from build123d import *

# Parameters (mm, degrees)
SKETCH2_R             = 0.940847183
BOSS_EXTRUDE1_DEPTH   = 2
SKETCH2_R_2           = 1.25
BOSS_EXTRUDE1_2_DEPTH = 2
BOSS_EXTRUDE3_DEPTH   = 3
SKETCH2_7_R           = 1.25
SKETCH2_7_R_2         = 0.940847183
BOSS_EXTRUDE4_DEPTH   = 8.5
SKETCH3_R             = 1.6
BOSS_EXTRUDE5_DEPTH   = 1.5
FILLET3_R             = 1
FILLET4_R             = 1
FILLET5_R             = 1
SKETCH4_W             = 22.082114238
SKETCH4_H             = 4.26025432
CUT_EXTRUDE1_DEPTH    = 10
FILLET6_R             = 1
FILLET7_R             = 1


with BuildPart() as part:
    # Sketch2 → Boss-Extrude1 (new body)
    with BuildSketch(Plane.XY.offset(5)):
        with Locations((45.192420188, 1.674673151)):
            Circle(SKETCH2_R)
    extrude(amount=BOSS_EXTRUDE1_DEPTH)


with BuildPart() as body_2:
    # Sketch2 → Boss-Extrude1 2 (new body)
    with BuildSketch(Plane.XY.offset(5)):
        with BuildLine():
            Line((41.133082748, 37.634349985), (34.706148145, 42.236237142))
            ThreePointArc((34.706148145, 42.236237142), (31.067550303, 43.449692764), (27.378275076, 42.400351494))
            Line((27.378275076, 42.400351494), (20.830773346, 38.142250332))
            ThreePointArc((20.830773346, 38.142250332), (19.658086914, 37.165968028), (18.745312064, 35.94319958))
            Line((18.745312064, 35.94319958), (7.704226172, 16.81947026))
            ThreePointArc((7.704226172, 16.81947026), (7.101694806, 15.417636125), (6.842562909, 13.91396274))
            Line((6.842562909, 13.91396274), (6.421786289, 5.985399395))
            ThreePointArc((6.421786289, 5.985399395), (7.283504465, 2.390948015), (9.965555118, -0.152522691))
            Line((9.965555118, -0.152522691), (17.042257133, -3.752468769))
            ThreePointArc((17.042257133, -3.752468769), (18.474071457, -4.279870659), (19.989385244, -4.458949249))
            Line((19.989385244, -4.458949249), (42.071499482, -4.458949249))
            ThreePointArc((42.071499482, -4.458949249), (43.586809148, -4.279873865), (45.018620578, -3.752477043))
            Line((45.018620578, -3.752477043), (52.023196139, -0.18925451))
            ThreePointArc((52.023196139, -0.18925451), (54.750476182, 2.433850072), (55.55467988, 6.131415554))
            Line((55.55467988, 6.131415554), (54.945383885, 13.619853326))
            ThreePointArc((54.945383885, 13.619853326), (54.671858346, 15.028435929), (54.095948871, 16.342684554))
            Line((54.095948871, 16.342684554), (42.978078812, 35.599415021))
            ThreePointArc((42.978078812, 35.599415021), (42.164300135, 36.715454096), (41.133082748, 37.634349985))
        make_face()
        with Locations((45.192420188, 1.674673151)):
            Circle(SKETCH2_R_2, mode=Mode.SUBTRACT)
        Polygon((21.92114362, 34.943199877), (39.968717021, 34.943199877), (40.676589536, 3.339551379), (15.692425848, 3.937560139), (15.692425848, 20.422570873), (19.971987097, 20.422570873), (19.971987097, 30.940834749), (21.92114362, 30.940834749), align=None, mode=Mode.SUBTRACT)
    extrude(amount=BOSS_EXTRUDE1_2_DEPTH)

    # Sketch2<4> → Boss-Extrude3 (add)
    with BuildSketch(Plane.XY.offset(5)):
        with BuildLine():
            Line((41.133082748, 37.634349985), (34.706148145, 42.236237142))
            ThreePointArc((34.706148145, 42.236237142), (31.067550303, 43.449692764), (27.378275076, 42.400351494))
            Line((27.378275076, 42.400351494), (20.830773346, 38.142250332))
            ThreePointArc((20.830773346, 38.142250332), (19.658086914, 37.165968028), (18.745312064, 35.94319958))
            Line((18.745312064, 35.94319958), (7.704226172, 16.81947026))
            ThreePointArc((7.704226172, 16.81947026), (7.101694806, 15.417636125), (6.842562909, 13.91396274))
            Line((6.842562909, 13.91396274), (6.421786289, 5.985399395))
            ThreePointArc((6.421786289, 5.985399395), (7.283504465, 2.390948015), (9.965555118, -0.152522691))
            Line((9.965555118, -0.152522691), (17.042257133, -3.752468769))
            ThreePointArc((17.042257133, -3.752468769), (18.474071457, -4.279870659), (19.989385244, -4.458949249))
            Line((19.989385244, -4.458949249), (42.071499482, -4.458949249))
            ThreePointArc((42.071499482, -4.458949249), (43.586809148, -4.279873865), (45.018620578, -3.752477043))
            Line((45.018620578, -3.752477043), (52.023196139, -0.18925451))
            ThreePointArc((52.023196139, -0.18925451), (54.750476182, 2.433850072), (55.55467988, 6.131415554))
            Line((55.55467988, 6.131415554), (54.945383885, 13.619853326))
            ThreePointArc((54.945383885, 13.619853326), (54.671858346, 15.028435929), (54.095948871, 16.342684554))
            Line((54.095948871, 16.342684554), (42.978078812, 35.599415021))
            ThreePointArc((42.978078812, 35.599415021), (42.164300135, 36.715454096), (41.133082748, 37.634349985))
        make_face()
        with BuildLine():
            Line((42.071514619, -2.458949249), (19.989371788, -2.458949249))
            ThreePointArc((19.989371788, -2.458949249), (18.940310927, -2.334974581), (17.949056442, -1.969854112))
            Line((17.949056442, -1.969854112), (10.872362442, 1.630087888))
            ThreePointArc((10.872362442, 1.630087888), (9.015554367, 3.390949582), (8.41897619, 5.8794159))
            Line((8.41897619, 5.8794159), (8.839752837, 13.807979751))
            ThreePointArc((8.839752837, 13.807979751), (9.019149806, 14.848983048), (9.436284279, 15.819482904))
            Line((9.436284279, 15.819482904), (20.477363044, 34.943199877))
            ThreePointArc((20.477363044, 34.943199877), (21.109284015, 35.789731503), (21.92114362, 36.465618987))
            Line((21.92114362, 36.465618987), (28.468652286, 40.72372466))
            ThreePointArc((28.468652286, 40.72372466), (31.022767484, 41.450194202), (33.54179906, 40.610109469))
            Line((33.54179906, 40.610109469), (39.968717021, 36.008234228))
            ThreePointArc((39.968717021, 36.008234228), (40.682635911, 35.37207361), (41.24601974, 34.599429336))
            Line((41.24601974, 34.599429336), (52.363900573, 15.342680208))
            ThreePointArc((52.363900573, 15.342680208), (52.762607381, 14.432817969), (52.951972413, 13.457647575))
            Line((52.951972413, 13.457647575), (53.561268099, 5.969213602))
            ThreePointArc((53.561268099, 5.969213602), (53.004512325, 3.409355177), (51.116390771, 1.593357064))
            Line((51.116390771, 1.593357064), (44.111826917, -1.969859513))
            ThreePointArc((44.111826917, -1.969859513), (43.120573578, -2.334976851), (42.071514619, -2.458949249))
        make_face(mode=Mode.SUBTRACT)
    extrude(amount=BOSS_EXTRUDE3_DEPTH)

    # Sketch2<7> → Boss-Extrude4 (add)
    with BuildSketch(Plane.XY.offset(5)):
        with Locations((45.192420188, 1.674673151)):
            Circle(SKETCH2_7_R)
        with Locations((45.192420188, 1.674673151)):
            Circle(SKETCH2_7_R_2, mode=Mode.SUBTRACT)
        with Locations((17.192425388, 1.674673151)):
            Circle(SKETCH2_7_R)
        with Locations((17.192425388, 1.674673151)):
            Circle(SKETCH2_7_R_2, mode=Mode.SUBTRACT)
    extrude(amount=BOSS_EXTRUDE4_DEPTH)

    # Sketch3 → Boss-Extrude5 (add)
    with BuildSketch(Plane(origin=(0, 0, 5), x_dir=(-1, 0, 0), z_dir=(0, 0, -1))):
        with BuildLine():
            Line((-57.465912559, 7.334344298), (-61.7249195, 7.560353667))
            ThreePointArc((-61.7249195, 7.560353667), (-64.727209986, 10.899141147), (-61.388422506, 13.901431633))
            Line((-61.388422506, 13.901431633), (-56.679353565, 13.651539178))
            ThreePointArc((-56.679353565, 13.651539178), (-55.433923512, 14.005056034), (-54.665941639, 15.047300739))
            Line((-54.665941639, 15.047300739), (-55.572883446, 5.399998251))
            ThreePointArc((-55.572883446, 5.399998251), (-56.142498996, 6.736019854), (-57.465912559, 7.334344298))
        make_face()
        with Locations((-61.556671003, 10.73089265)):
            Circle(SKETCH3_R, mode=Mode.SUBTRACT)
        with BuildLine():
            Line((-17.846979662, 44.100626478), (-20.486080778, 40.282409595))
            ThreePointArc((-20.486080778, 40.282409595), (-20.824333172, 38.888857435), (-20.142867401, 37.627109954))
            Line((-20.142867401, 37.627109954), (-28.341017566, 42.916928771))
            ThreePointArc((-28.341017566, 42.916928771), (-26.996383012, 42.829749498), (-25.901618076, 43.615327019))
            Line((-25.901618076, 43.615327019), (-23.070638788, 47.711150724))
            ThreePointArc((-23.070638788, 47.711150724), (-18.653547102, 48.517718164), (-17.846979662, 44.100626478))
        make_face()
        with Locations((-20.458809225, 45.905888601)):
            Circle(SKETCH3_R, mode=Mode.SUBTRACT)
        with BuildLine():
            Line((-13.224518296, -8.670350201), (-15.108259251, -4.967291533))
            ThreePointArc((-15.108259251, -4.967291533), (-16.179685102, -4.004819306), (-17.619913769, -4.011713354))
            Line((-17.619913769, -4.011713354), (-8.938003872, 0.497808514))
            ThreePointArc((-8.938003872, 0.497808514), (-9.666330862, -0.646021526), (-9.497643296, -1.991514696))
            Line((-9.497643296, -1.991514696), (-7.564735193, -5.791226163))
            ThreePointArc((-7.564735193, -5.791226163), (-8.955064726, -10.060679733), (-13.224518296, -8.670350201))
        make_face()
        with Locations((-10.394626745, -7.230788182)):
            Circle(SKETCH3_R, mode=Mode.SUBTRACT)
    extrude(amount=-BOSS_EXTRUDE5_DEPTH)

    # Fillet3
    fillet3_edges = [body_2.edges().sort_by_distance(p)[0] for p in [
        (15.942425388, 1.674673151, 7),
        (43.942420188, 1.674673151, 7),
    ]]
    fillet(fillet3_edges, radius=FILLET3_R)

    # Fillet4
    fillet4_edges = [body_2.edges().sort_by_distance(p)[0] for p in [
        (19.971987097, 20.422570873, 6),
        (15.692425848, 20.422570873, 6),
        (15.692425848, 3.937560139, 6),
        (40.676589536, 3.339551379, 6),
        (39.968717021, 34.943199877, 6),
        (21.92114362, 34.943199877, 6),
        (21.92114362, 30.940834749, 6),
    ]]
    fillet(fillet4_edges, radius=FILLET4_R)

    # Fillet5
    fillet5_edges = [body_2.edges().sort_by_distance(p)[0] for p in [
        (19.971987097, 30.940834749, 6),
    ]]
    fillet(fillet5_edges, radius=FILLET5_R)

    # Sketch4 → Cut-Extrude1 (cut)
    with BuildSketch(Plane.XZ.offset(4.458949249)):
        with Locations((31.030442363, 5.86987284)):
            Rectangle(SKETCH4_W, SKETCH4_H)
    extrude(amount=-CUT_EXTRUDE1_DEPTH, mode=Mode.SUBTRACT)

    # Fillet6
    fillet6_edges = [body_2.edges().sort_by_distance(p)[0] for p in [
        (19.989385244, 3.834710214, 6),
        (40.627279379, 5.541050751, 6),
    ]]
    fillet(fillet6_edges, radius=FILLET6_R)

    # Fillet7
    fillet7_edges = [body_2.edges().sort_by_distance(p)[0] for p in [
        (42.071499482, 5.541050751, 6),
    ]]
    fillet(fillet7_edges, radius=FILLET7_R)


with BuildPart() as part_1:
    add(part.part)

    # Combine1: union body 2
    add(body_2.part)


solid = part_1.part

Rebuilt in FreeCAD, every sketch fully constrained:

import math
import FreeCAD as App
import Part
import Sketcher
Q = App.Units.Quantity


def edges_at(feature, points):
    """Names of the edges that pass closest to the given points."""
    edges = feature.Shape.Edges
    near = lambda p: min(range(len(edges)), key=lambda i: edges[i].distToShape(Part.Vertex(*p))[0])
    return sorted({f"Edge{near(p) + 1}" for p in points})

doc = App.newDocument("Part")
body = doc.addObject("PartDesign::Body", "Body")

# Sketch on XY plane
sketch1 = doc.addObject("Sketcher::SketchObject", "Sketch")
body.addObject(sketch1)
sketch1.AttachmentSupport = (doc.XY_Plane, [""])
sketch1.MapMode = "FlatFace"
sketch1.AttachmentOffset = App.Placement(App.Vector(0, 0, 5), App.Rotation())
sketch1.addGeometry(Part.Circle(App.Vector(45.2, 1.7, 0), App.Vector(0, 0, 1), 0.9), False)
sketch1.addConstraint([
    Sketcher.Constraint("Diameter", 0, 1.881694),
    Sketcher.Constraint("DistanceX", -1, 1, 0, 3, 45.19242),
    Sketcher.Constraint("DistanceY", -1, 1, 0, 3, 1.674673),
])
pad1 = doc.addObject("PartDesign::Pad", "Pad")
body.addObject(pad1)
pad1.Profile = sketch1
pad1.Length = 2
body2 = doc.addObject("PartDesign::Body", "Body001")

# Sketch on XY plane
sketch2 = doc.addObject("Sketcher::SketchObject", "Sketch001")
body2.addObject(sketch2)
sketch2.AttachmentSupport = (doc.getObject("XY_Plane001"), [""])
sketch2.MapMode = "FlatFace"
sketch2.AttachmentOffset = App.Placement(App.Vector(0, 0, 5), App.Rotation())
sketch2.addGeometry([
    Part.LineSegment(App.Vector(41.133083, 37.63435, 0), App.Vector(34.706148, 42.236237, 0)),  # 0
    Part.ArcOfCircle(Part.Circle(App.Vector(30.922013, 36.951322, 0), App.Vector(0, 0, 1), 6.5), math.radians(54.396366), math.radians(123.037681)),  # 1
    Part.LineSegment(App.Vector(27.378275, 42.400351, 0), App.Vector(20.830773, 38.14225, 0)),  # 2
    Part.ArcOfCircle(Part.Circle(App.Vector(24.374478, 32.693197, 0), App.Vector(0, 0, 1), 6.500002), math.radians(123.037316), math.radians(149.999983)),  # 3
    Part.LineSegment(App.Vector(18.745312, 35.9432, 0), App.Vector(7.704226, 16.81947, 0)),  # 4
    Part.ArcOfCircle(Part.Circle(App.Vector(13.333429, 13.56954, 0), App.Vector(0, 0, 1), 6.499998), math.radians(150.000701), math.radians(176.962583)),  # 5
    Part.LineSegment(App.Vector(6.842563, 13.913963, 0), App.Vector(6.421786, 5.985399, 0)),  # 6
    Part.ArcOfCircle(Part.Circle(App.Vector(12.912654, 5.640974, 0), App.Vector(0, 0, 1), 6.5), math.radians(176.962558), math.radians(243.037972)),  # 7
    Part.LineSegment(App.Vector(9.965555, -0.152523, 0), App.Vector(17.042257, -3.752469, 0)),  # 8
    Part.ArcOfCircle(Part.Circle(App.Vector(19.989311, 2.041048, 0), App.Vector(0, 0, 1), 6.499997), math.radians(-116.961592), math.radians(-89.999348)),  # 9
    Part.LineSegment(App.Vector(19.989385, -4.458949, 0), App.Vector(42.071499, -4.458949, 0)),  # 10
    Part.ArcOfCircle(Part.Circle(App.Vector(42.071583, 2.041048, 0), App.Vector(0, 0, 1), 6.499997), math.radians(-90.000734), math.radians(-63.038568)),  # 11
    Part.LineSegment(App.Vector(45.018621, -3.752477, 0), App.Vector(52.023196, -0.189255, 0)),  # 12
    Part.ArcOfCircle(Part.Circle(App.Vector(49.076092, 5.604241, 0), App.Vector(0, 0, 1), 6.500001), math.radians(-63.037932), math.radians(4.652015)),  # 13
    Part.LineSegment(App.Vector(55.55468, 6.131416, 0), App.Vector(54.945384, 13.619853, 0)),  # 14
    Part.ArcOfCircle(Part.Circle(App.Vector(48.466795, 13.092657, 0), App.Vector(0, 0, 1), 6.500004), math.radians(4.6522), math.radians(30.000256)),  # 15
    Part.LineSegment(App.Vector(54.095949, 16.342685, 0), App.Vector(42.978079, 35.599415, 0)),  # 16
    Part.ArcOfCircle(Part.Circle(App.Vector(37.348874, 32.349496, 0), App.Vector(0, 0, 1), 6.499994), math.radians(29.999212), math.radians(54.395526)),  # 17
    Part.Circle(App.Vector(45.19242, 1.674673, 0), App.Vector(0, 0, 1), 1.25),  # 18
    Part.LineSegment(App.Vector(21.921144, 30.940835, 0), App.Vector(21.921144, 34.9432, 0)),  # 19
    Part.LineSegment(App.Vector(21.921144, 34.9432, 0), App.Vector(39.968717, 34.9432, 0)),  # 20
    Part.LineSegment(App.Vector(39.968717, 34.9432, 0), App.Vector(40.67659, 3.339551, 0)),  # 21
    Part.LineSegment(App.Vector(40.67659, 3.339551, 0), App.Vector(15.692426, 3.93756, 0)),  # 22
    Part.LineSegment(App.Vector(15.692426, 3.93756, 0), App.Vector(15.692426, 20.422571, 0)),  # 23
    Part.LineSegment(App.Vector(15.692426, 20.422571, 0), App.Vector(19.971987, 20.422571, 0)),  # 24
    Part.LineSegment(App.Vector(19.971987, 20.422571, 0), App.Vector(19.971987, 30.940835, 0)),  # 25
    Part.LineSegment(App.Vector(19.971987, 30.940835, 0), App.Vector(21.921144, 30.940835, 0)),  # 26
], False)
sketch2.addConstraint([
    Sketcher.Constraint("Coincident", 0, 2, 1, 1),
    Sketcher.Constraint("Coincident", 1, 2, 2, 1),
    Sketcher.Constraint("Coincident", 2, 2, 3, 1),
    Sketcher.Constraint("Coincident", 3, 2, 4, 1),
    Sketcher.Constraint("Coincident", 4, 2, 5, 1),
    Sketcher.Constraint("Coincident", 5, 2, 6, 1),
    Sketcher.Constraint("Coincident", 6, 2, 7, 1),
    Sketcher.Constraint("Coincident", 7, 2, 8, 1),
    Sketcher.Constraint("Coincident", 8, 2, 9, 1),
    Sketcher.Constraint("Coincident", 9, 2, 10, 1),
    Sketcher.Constraint("Coincident", 10, 2, 11, 1),
    Sketcher.Constraint("Coincident", 11, 2, 12, 1),
    Sketcher.Constraint("Coincident", 12, 2, 13, 1),
    Sketcher.Constraint("Coincident", 13, 2, 14, 1),
    Sketcher.Constraint("Coincident", 14, 2, 15, 1),
    Sketcher.Constraint("Coincident", 15, 2, 16, 1),
    Sketcher.Constraint("Coincident", 16, 2, 17, 1),
    Sketcher.Constraint("Coincident", 17, 2, 0, 1),
    Sketcher.Constraint("Coincident", 19, 2, 20, 1),
    Sketcher.Constraint("Coincident", 20, 2, 21, 1),
    Sketcher.Constraint("Coincident", 21, 2, 22, 1),
    Sketcher.Constraint("Coincident", 22, 2, 23, 1),
    Sketcher.Constraint("Coincident", 23, 2, 24, 1),
    Sketcher.Constraint("Coincident", 24, 2, 25, 1),
    Sketcher.Constraint("Coincident", 25, 2, 26, 1),
    Sketcher.Constraint("Coincident", 26, 2, 19, 1),
    Sketcher.Constraint("Horizontal", 10),
    Sketcher.Constraint("Vertical", 19),
    Sketcher.Constraint("Horizontal", 20),
    Sketcher.Constraint("Vertical", 23),
    Sketcher.Constraint("Horizontal", 24),
    Sketcher.Constraint("Vertical", 25),
    Sketcher.Constraint("Horizontal", 26),
    Sketcher.Constraint("Diameter", 18, 2.5),
    Sketcher.Constraint("Radius", 1, 6.5),
    Sketcher.Constraint("Radius", 3, 6.500002),
    Sketcher.Constraint("Radius", 7, 6.5),
    Sketcher.Constraint("Radius", 13, 6.500001),
    Sketcher.Constraint("DistanceY", 19, 2, 3, 2, 1.0),
    Sketcher.Constraint("Radius", 5, 6.499998),
    Sketcher.Constraint("Radius", 9, 6.499997),
    Sketcher.Constraint("Radius", 11, 6.499997),
    Sketcher.Constraint("Radius", 15, 6.500004),
    Sketcher.Constraint("Radius", 17, 6.499994),
    Sketcher.Constraint("DistanceY", 17, 2, 1, 2, 4.766002),
    Sketcher.Constraint("DistanceX", 24, 1, 24, 2, 4.279561),
    Sketcher.Constraint("DistanceY", 23, 1, 23, 2, 16.485011),
    Sketcher.Constraint("DistanceY", -1, 1, 3, 2, 35.9432),
    Sketcher.Constraint("DistanceY", -1, 1, 6, 2, 5.985399),
    Sketcher.Constraint("DistanceX", -1, 1, 10, 2, 42.071499),
    Sketcher.Constraint("DistanceY", 13, 3, 5, 3, 7.965299),
    Sketcher.Constraint("DistanceY", 17, 3, 3, 3, 0.343702),
    Sketcher.Constraint("DistanceX", 1, 2, 17, 3, 9.970599),
    Sketcher.Constraint("DistanceX", 2, 2, 1, 2, 6.547502),
    Sketcher.Constraint("DistanceY", 2, 2, 1, 2, 4.258101),
    Sketcher.Constraint("DistanceX", 3, 2, 1, 3, 12.176701),
    Sketcher.Constraint("DistanceX", 7, 2, 7, 3, 2.947099),
    Sketcher.Constraint("DistanceX", 6, 2, 9, 2, 13.567599),
    Sketcher.Constraint("DistanceX", 11, 2, 18, 3, 0.1738),
    Sketcher.Constraint("DistanceX", 3, 3, 16, 2, 18.603601),
    Sketcher.Constraint("DistanceY", 10, 2, 21, 2, 7.798501),
    Sketcher.Constraint("DistanceX", 4, 2, 23, 2, 7.9882),
    Sketcher.Constraint("DistanceY", 4, 2, 23, 2, 3.603101),
    Sketcher.Constraint("Distance", 0, 7.90461),
    Sketcher.Constraint("Distance", 4, 22.082178),
    Sketcher.Constraint("Distance", 6, 7.939721),
    Sketcher.Constraint("Distance", 8, 7.939731),
    Sketcher.Constraint("Distance", 22, 24.991319),
    Sketcher.Constraint("DistanceX", 10, 1, 10, 2, 22.082114),
    Sketcher.Constraint("DistanceX", 20, 1, 20, 2, 18.047573),
    Sketcher.Constraint("DistanceX", 26, 1, 26, 2, 1.949157),
    Sketcher.Constraint("DistanceY", 19, 1, 19, 2, 4.002365),
    Sketcher.Constraint("DistanceY", 25, 1, 25, 2, 10.518264),
    Sketcher.Constraint("DistanceY", -1, 1, 1, 3, 36.951322),
    Sketcher.Constraint("DistanceX", -1, 1, 5, 3, 13.333429),
    Sketcher.Constraint("DistanceY", -1, 1, 5, 3, 13.56954),
    Sketcher.Constraint("DistanceX", -1, 1, 9, 3, 19.989311),
    Sketcher.Constraint("DistanceY", -1, 1, 9, 3, 2.041048),
    Sketcher.Constraint("DistanceX", -1, 1, 18, 3, 45.19242),
    Sketcher.Constraint("DistanceX", -1, 1, 0, 2, 34.706148),
    Sketcher.Constraint("DistanceY", 8, 2, -1, 1, 3.752469),
    Sketcher.Constraint("DistanceX", -1, 1, 13, 2, 55.55468),
    Sketcher.Constraint("DistanceX", -1, 1, 15, 2, 54.095949),
    Sketcher.Constraint("DistanceX", 9, 3, 11, 3, 22.082271),
    Sketcher.Constraint("DistanceX", 11, 3, 13, 3, 7.00451),
    Sketcher.Constraint("DistanceY", 11, 3, 15, 3, 11.051609),
    Sketcher.Constraint("DistanceX", 1, 3, 15, 3, 17.544782),
    Sketcher.Constraint("DistanceY", 11, 2, 18, 3, 5.42715),
    Sketcher.Constraint("DistanceY", 12, 2, 13, 2, 6.32067),
    Sketcher.Constraint("DistanceX", 15, 3, 14, 2, 6.478589),
])
pad2 = doc.addObject("PartDesign::Pad", "Pad001")
body2.addObject(pad2)
pad2.Profile = sketch2
pad2.Length = 2

# Sketch on XY plane
sketch3 = doc.addObject("Sketcher::SketchObject", "Sketch002")
body2.addObject(sketch3)
sketch3.AttachmentSupport = (doc.getObject("XY_Plane001"), [""])
sketch3.MapMode = "FlatFace"
sketch3.AttachmentOffset = App.Placement(App.Vector(0, 0, 5), App.Rotation())
sketch3.addGeometry([
    Part.LineSegment(App.Vector(41.1, 37.6, 0), App.Vector(34.7, 42.2, 0)),  # 0
    Part.ArcOfCircle(Part.Circle(App.Vector(30.9, 37, 0), App.Vector(0, 0, 1), 6.5), math.radians(54), math.radians(123)),  # 1
    Part.LineSegment(App.Vector(27.4, 42.4, 0), App.Vector(20.8, 38.1, 0)),  # 2
    Part.ArcOfCircle(Part.Circle(App.Vector(24.4, 32.7, 0), App.Vector(0, 0, 1), 6.5), math.radians(123), math.radians(150)),  # 3
    Part.LineSegment(App.Vector(18.7, 35.9, 0), App.Vector(7.7, 16.8, 0)),  # 4
    Part.ArcOfCircle(Part.Circle(App.Vector(13.3, 13.6, 0), App.Vector(0, 0, 1), 6.5), math.radians(150), math.radians(177)),  # 5
    Part.LineSegment(App.Vector(6.8, 13.9, 0), App.Vector(6.4, 6, 0)),  # 6
    Part.ArcOfCircle(Part.Circle(App.Vector(12.9, 5.6, 0), App.Vector(0, 0, 1), 6.5), math.radians(177), math.radians(243)),  # 7
    Part.LineSegment(App.Vector(10, -0.2, 0), App.Vector(17, -3.8, 0)),  # 8
    Part.ArcOfCircle(Part.Circle(App.Vector(20, 2, 0), App.Vector(0, 0, 1), 6.5), math.radians(-117), math.radians(-90)),  # 9
    Part.LineSegment(App.Vector(20, -4.5, 0), App.Vector(42.1, -4.5, 0)),  # 10
    Part.ArcOfCircle(Part.Circle(App.Vector(42.1, 2, 0), App.Vector(0, 0, 1), 6.5), math.radians(-90), math.radians(-63)),  # 11
    Part.LineSegment(App.Vector(45, -3.8, 0), App.Vector(52, -0.2, 0)),  # 12
    Part.ArcOfCircle(Part.Circle(App.Vector(49.1, 5.6, 0), App.Vector(0, 0, 1), 6.5), math.radians(-63), math.radians(5)),  # 13
    Part.LineSegment(App.Vector(55.6, 6.1, 0), App.Vector(54.9, 13.6, 0)),  # 14
    Part.ArcOfCircle(Part.Circle(App.Vector(48.5, 13.1, 0), App.Vector(0, 0, 1), 6.5), math.radians(5), math.radians(30)),  # 15
    Part.LineSegment(App.Vector(54.1, 16.3, 0), App.Vector(43, 35.6, 0)),  # 16
    Part.ArcOfCircle(Part.Circle(App.Vector(37.3, 32.3, 0), App.Vector(0, 0, 1), 6.5), math.radians(30), math.radians(54)),  # 17
    Part.ArcOfCircle(Part.Circle(App.Vector(42.1, 2, 0), App.Vector(0, 0, 1), 4.5), math.radians(-90), math.radians(-63)),  # 18
    Part.LineSegment(App.Vector(42.1, -2.5, 0), App.Vector(20, -2.5, 0)),  # 19
    Part.ArcOfCircle(Part.Circle(App.Vector(20, 2, 0), App.Vector(0, 0, 1), 4.5), math.radians(-117), math.radians(-90)),  # 20
    Part.LineSegment(App.Vector(17.9, -2, 0), App.Vector(10.9, 1.6, 0)),  # 21
    Part.ArcOfCircle(Part.Circle(App.Vector(12.9, 5.6, 0), App.Vector(0, 0, 1), 4.5), math.radians(177), math.radians(243)),  # 22
    Part.LineSegment(App.Vector(8.4, 5.9, 0), App.Vector(8.8, 13.8, 0)),  # 23
    Part.ArcOfCircle(Part.Circle(App.Vector(13.3, 13.6, 0), App.Vector(0, 0, 1), 4.5), math.radians(150), math.radians(177)),  # 24
    Part.LineSegment(App.Vector(9.4, 15.8, 0), App.Vector(20.5, 34.9, 0)),  # 25
    Part.ArcOfCircle(Part.Circle(App.Vector(24.4, 32.7, 0), App.Vector(0, 0, 1), 4.5), math.radians(123), math.radians(150)),  # 26
    Part.LineSegment(App.Vector(21.9, 36.5, 0), App.Vector(28.5, 40.7, 0)),  # 27
    Part.ArcOfCircle(Part.Circle(App.Vector(30.9, 37, 0), App.Vector(0, 0, 1), 4.5), math.radians(54), math.radians(123)),  # 28
    Part.LineSegment(App.Vector(33.5, 40.6, 0), App.Vector(40, 36, 0)),  # 29
    Part.ArcOfCircle(Part.Circle(App.Vector(37.3, 32.3, 0), App.Vector(0, 0, 1), 4.5), math.radians(30), math.radians(54)),  # 30
    Part.LineSegment(App.Vector(41.2, 34.6, 0), App.Vector(52.4, 15.3, 0)),  # 31
    Part.ArcOfCircle(Part.Circle(App.Vector(48.5, 13.1, 0), App.Vector(0, 0, 1), 4.5), math.radians(5), math.radians(30)),  # 32
    Part.LineSegment(App.Vector(53, 13.5, 0), App.Vector(53.6, 6, 0)),  # 33
    Part.ArcOfCircle(Part.Circle(App.Vector(49.1, 5.6, 0), App.Vector(0, 0, 1), 4.5), math.radians(-63), math.radians(5)),  # 34
    Part.LineSegment(App.Vector(51.1, 1.6, 0), App.Vector(44.1, -2, 0)),  # 35
], False)
sketch3.addConstraint([
    Sketcher.Constraint("Coincident", 0, 2, 1, 1),
    Sketcher.Constraint("Coincident", 1, 2, 2, 1),
    Sketcher.Constraint("Coincident", 2, 2, 3, 1),
    Sketcher.Constraint("Tangent", 3, 2, 4, 1),
    Sketcher.Constraint("Coincident", 4, 2, 5, 1),
    Sketcher.Constraint("Coincident", 5, 2, 6, 1),
    Sketcher.Constraint("Coincident", 6, 2, 7, 1),
    Sketcher.Constraint("Coincident", 7, 2, 8, 1),
    Sketcher.Constraint("Coincident", 8, 2, 9, 1),
    Sketcher.Constraint("Coincident", 9, 2, 10, 1),
    Sketcher.Constraint("Coincident", 10, 2, 11, 1),
    Sketcher.Constraint("Coincident", 11, 2, 12, 1),
    Sketcher.Constraint("Coincident", 12, 2, 13, 1),
    Sketcher.Constraint("Coincident", 13, 2, 14, 1),
    Sketcher.Constraint("Coincident", 14, 2, 15, 1),
    Sketcher.Constraint("Coincident", 15, 2, 16, 1),
    Sketcher.Constraint("Coincident", 16, 2, 17, 1),
    Sketcher.Constraint("Coincident", 17, 2, 0, 1),
    Sketcher.Constraint("Coincident", 18, 1, 19, 1),
    Sketcher.Constraint("Coincident", 19, 2, 20, 2),
    Sketcher.Constraint("Coincident", 20, 1, 21, 1),
    Sketcher.Constraint("Coincident", 21, 2, 22, 2),
    Sketcher.Constraint("Coincident", 22, 1, 23, 1),
    Sketcher.Constraint("Coincident", 23, 2, 24, 2),
    Sketcher.Constraint("Coincident", 24, 1, 25, 1),
    Sketcher.Constraint("Tangent", 25, 2, 26, 2),
    Sketcher.Constraint("Coincident", 26, 1, 27, 1),
    Sketcher.Constraint("Coincident", 27, 2, 28, 2),
    Sketcher.Constraint("Coincident", 28, 1, 29, 1),
    Sketcher.Constraint("Coincident", 29, 2, 30, 2),
    Sketcher.Constraint("Coincident", 30, 1, 31, 1),
    Sketcher.Constraint("Coincident", 31, 2, 32, 2),
    Sketcher.Constraint("Coincident", 32, 1, 33, 1),
    Sketcher.Constraint("Coincident", 33, 2, 34, 2),
    Sketcher.Constraint("Coincident", 34, 1, 35, 1),
    Sketcher.Constraint("Coincident", 35, 2, 18, 2),
    Sketcher.Constraint("Horizontal", 10),
    Sketcher.Constraint("Horizontal", 19),
    Sketcher.Constraint("Coincident", 18, 3, 11, 3),
    Sketcher.Constraint("Coincident", 20, 3, 9, 3),
    Sketcher.Constraint("Coincident", 22, 3, 7, 3),
    Sketcher.Constraint("Coincident", 24, 3, 5, 3),
    Sketcher.Constraint("Coincident", 26, 3, 3, 3),
    Sketcher.Constraint("Coincident", 28, 3, 1, 3),
    Sketcher.Constraint("Coincident", 30, 3, 17, 3),
    Sketcher.Constraint("Coincident", 32, 3, 15, 3),
    Sketcher.Constraint("Coincident", 34, 3, 13, 3),
    Sketcher.Constraint("Equal", 1, 3),
    Sketcher.Constraint("Equal", 5, 7),
    Sketcher.Constraint("Equal", 5, 9),
    Sketcher.Constraint("Equal", 9, 11),
    Sketcher.Constraint("Equal", 7, 13),
    Sketcher.Constraint("Equal", 22, 24),
    Sketcher.Constraint("Equal", 22, 26),
    Sketcher.Constraint("Equal", 26, 28),
    Sketcher.Constraint("Equal", 28, 34),
    Sketcher.Constraint("Parallel", 8, 21),
    Sketcher.Constraint("Parallel", 4, 25),
    Sketcher.Constraint("Parallel", 0, 29),
    Sketcher.Constraint("Parallel", 16, 31),
    Sketcher.Constraint("Equal", 6, 21),
    Sketcher.Constraint("Equal", 21, 23),
    Sketcher.Constraint("Radius", 1, 6.5),
    Sketcher.Constraint("Radius", 22, 4.5),
    Sketcher.Constraint("Angle", 4, Q("-119.99999 deg")),
    Sketcher.Constraint("Angle", 16, Q("119.999981 deg")),
    Sketcher.Constraint("Radius", 15, 6.500004),
    Sketcher.Constraint("Radius", 17, 6.499994),
    Sketcher.Constraint("DistanceY", -1, 1, 3, 2, 35.9432),
    Sketcher.Constraint("DistanceY", -1, 1, 6, 2, 5.985399),
    Sketcher.Constraint("DistanceX", -1, 1, 10, 2, 42.071499),
    Sketcher.Constraint("DistanceX", -1, 1, 28, 1, 33.541799),
    Sketcher.Constraint("DistanceX", -1, 1, 31, 2, 52.363901),
    Sketcher.Constraint("DistanceY", 13, 3, 5, 3, 7.965299),
    Sketcher.Constraint("DistanceY", 17, 3, 3, 3, 0.343702),
    Sketcher.Constraint("DistanceX", 2, 2, 1, 2, 6.547502),
    Sketcher.Constraint("DistanceY", 2, 2, 1, 2, 4.258101),
    Sketcher.Constraint("DistanceX", 3, 2, 1, 3, 12.176701),
    Sketcher.Constraint("DistanceX", 7, 2, 22, 3, 2.947099),
    Sketcher.Constraint("DistanceX", 8, 2, 20, 1, 0.906799),
    Sketcher.Constraint("DistanceY", 33, 2, 13, 2, 0.162202),
    Sketcher.Constraint("DistanceX", 34, 3, 34, 1, 2.040298),
    Sketcher.Constraint("Distance", 0, 7.90461),
    Sketcher.Constraint("Distance", 4, 22.082178),
    Sketcher.Constraint("Distance", 6, 7.939721),
    Sketcher.Constraint("Distance", 8, 7.939731),
    Sketcher.Constraint("Distance", 29, 7.904589),
    Sketcher.Constraint("Distance", 33, 7.513181),
    Sketcher.Constraint("Distance", 35, 7.85878),
    Sketcher.Constraint("DistanceX", 10, 1, 10, 2, 22.082114),
    Sketcher.Constraint("DistanceX", 19, 2, 19, 1, 22.082143),
    Sketcher.Constraint("DistanceX", -1, 1, 5, 3, 13.333429),
    Sketcher.Constraint("DistanceY", -1, 1, 5, 3, 13.56954),
    Sketcher.Constraint("DistanceX", -1, 1, 9, 3, 19.989311),
    Sketcher.Constraint("DistanceY", -1, 1, 9, 3, 2.041048),
    Sketcher.Constraint("DistanceX", -1, 1, 0, 2, 34.706148),
    Sketcher.Constraint("DistanceY", -1, 1, 1, 2, 42.400351),
    Sketcher.Constraint("DistanceY", 8, 2, -1, 1, 3.752469),
    Sketcher.Constraint("DistanceX", -1, 1, 11, 2, 45.018621),
    Sketcher.Constraint("DistanceX", -1, 1, 13, 2, 55.55468),
    Sketcher.Constraint("DistanceX", -1, 1, 15, 2, 54.095949),
    Sketcher.Constraint("DistanceX", -1, 1, 16, 2, 42.978079),
    Sketcher.Constraint("DistanceY", -1, 1, 17, 2, 37.63435),
    Sketcher.Constraint("DistanceX", -1, 1, 19, 2, 19.989372),
    Sketcher.Constraint("DistanceY", -1, 1, 23, 2, 13.80798),
    Sketcher.Constraint("DistanceY", -1, 1, 26, 1, 36.465619),
    Sketcher.Constraint("DistanceX", -1, 1, 30, 1, 41.24602),
    Sketcher.Constraint("DistanceX", -1, 1, 34, 1, 51.116391),
    Sketcher.Constraint("DistanceY", 35, 2, -1, 1, 1.96986),
    Sketcher.Constraint("DistanceX", 7, 3, 1, 3, 18.009359),
    Sketcher.Constraint("DistanceY", 11, 3, 15, 3, 11.051609),
    Sketcher.Constraint("DistanceY", 12, 2, 13, 2, 6.32067),
    Sketcher.Constraint("DistanceX", 15, 3, 14, 2, 6.478589),
    Sketcher.Constraint("DistanceX", 4, 2, 24, 1, 1.732058),
    Sketcher.Constraint("DistanceX", 27, 2, 1, 3, 2.453361),
])
pad3 = doc.addObject("PartDesign::Pad", "Pad002")
body2.addObject(pad3)
pad3.Profile = sketch3
pad3.Length = 3

# Sketch on XY plane
sketch4 = doc.addObject("Sketcher::SketchObject", "Sketch003")
body2.addObject(sketch4)
sketch4.AttachmentSupport = (doc.getObject("XY_Plane001"), [""])
sketch4.MapMode = "FlatFace"
sketch4.AttachmentOffset = App.Placement(App.Vector(0, 0, 5), App.Rotation())
sketch4.addGeometry([
    Part.Circle(App.Vector(45.2, 1.7, 0), App.Vector(0, 0, 1), 1.2),
    Part.Circle(App.Vector(45.2, 1.7, 0), App.Vector(0, 0, 1), 0.9),
    Part.Circle(App.Vector(17.2, 1.7, 0), App.Vector(0, 0, 1), 1.2),
    Part.Circle(App.Vector(17.2, 1.7, 0), App.Vector(0, 0, 1), 0.9),
], False)
sketch4.addConstraint([
    Sketcher.Constraint("Coincident", 1, 3, 0, 3),
    Sketcher.Constraint("Coincident", 3, 3, 2, 3),
    Sketcher.Constraint("Equal", 0, 2),
    Sketcher.Constraint("Equal", 1, 3),
    Sketcher.Constraint("Horizontal", 1, 3, 2, 3),
    Sketcher.Constraint("Diameter", 0, 2.5),
    Sketcher.Constraint("Diameter", 1, 1.881694),
    Sketcher.Constraint("DistanceX", -1, 1, 0, 3, 45.19242),
    Sketcher.Constraint("DistanceY", -1, 1, 0, 3, 1.674673),
    Sketcher.Constraint("DistanceX", -1, 1, 2, 3, 17.192425),
])
pad4 = doc.addObject("PartDesign::Pad", "Pad003")
body2.addObject(pad4)
pad4.Profile = sketch4
pad4.Length = 8.5

# Sketch on XY plane
sketch5 = doc.addObject("Sketcher::SketchObject", "Sketch004")
body2.addObject(sketch5)
sketch5.AttachmentSupport = (doc.getObject("XY_Plane001"), [""])
sketch5.MapMode = "FlatFace"
sketch5.AttachmentOffset = App.Placement(App.Vector(0, 0, 5), App.Rotation())
sketch5.addGeometry([
    Part.LineSegment(App.Vector(61.724919, 7.560354, 0), App.Vector(57.465913, 7.334344, 0)),  # 0
    Part.ArcOfCircle(Part.Circle(App.Vector(57.571896, 5.337154, 0), App.Vector(0, 0, 1), 2), math.radians(93.037621), math.radians(178.19936)),  # 1
    Part.LineSegment(App.Vector(55.572883, 5.399998, 0), App.Vector(54.665942, 15.047301, 0)),  # 2
    Part.ArcOfCircle(Part.Circle(App.Vector(56.57337, 15.648729, 0), App.Vector(0, 0, 1), 2), math.radians(-162.499497), math.radians(-86.962379)),  # 3
    Part.LineSegment(App.Vector(56.679354, 13.651539, 0), App.Vector(61.388423, 13.901432, 0)),  # 4
    Part.ArcOfCircle(Part.Circle(App.Vector(61.556671, 10.730893, 0), App.Vector(0, 0, 1), 3.175), math.radians(-86.962379), math.radians(93.037621)),  # 5
    Part.Circle(App.Vector(61.556671, 10.730893, 0), App.Vector(0, 0, 1), 1.6),  # 6
    Part.LineSegment(App.Vector(20.486081, 40.28241, 0), App.Vector(17.84698, 44.100626, 0)),  # 7
    Part.ArcOfCircle(Part.Circle(App.Vector(20.458809, 45.905889, 0), App.Vector(0, 0, 1), 3.175), math.radians(34.651716), math.radians(214.651716)),  # 8
    Part.LineSegment(App.Vector(23.070639, 47.711151, 0), App.Vector(25.901618, 43.615327, 0)),  # 9
    Part.ArcOfCircle(Part.Circle(App.Vector(27.546865, 44.7525, 0), App.Vector(0, 0, 1), 2), math.radians(-145.348284), math.radians(-66.604472)),  # 10
    Part.LineSegment(App.Vector(28.341018, 42.916929, 0), App.Vector(20.142867, 37.62711, 0)),  # 11
    Part.ArcOfCircle(Part.Circle(App.Vector(18.840834, 39.145237, 0), App.Vector(0, 0, 1), 2), math.radians(-49.381692), math.radians(34.651717)),  # 12
    Part.Circle(App.Vector(20.458809, 45.905889, 0), App.Vector(0, 0, 1), 1.6),  # 13
    Part.LineSegment(App.Vector(15.108259, -4.967292, 0), App.Vector(13.224518, -8.67035, 0)),  # 14
    Part.ArcOfCircle(Part.Circle(App.Vector(10.394627, -7.230788, 0), App.Vector(0, 0, 1), 3.175), math.radians(153.037621), math.radians(333.037621)),  # 15
    Part.LineSegment(App.Vector(7.564735, -5.791226, 0), App.Vector(9.497643, -1.991515, 0)),  # 16
    Part.ArcOfCircle(Part.Circle(App.Vector(7.715034, -1.084704, 0), App.Vector(0, 0, 1), 2), math.radians(-26.962379), math.radians(52.303065)),  # 17
    Part.LineSegment(App.Vector(8.938004, 0.497809, 0), App.Vector(17.619914, -4.011713, 0)),  # 18
    Part.ArcOfCircle(Part.Circle(App.Vector(16.890868, -5.874102, 0), App.Vector(0, 0, 1), 2), math.radians(68.62178), math.radians(153.037621)),  # 19
    Part.Circle(App.Vector(10.394627, -7.230788, 0), App.Vector(0, 0, 1), 1.6),  # 20
], False)
sketch5.addConstraint([
    Sketcher.Constraint("Coincident", 0, 2, 1, 1),
    Sketcher.Constraint("Coincident", 1, 2, 2, 1),
    Sketcher.Constraint("Coincident", 2, 2, 3, 1),
    Sketcher.Constraint("Coincident", 3, 2, 4, 1),
    Sketcher.Constraint("Coincident", 4, 2, 5, 2),
    Sketcher.Constraint("Coincident", 5, 1, 0, 1),
    Sketcher.Constraint("Coincident", 7, 2, 8, 2),
    Sketcher.Constraint("Coincident", 8, 1, 9, 1),
    Sketcher.Constraint("Coincident", 9, 2, 10, 1),
    Sketcher.Constraint("Coincident", 10, 2, 11, 1),
    Sketcher.Constraint("Coincident", 11, 2, 12, 1),
    Sketcher.Constraint("Coincident", 12, 2, 7, 1),
    Sketcher.Constraint("Coincident", 14, 2, 15, 2),
    Sketcher.Constraint("Coincident", 15, 1, 16, 1),
    Sketcher.Constraint("Coincident", 16, 2, 17, 1),
    Sketcher.Constraint("Coincident", 17, 2, 18, 1),
    Sketcher.Constraint("Coincident", 18, 2, 19, 1),
    Sketcher.Constraint("Coincident", 19, 2, 14, 1),
    Sketcher.Constraint("Coincident", 6, 3, 5, 3),
    Sketcher.Constraint("Coincident", 13, 3, 8, 3),
    Sketcher.Constraint("Coincident", 20, 3, 15, 3),
    Sketcher.Constraint("Radius", 1, 2.0),
    Sketcher.Constraint("Radius", 3, 2.0),
    Sketcher.Constraint("Radius", 10, 2.0),
    Sketcher.Constraint("Radius", 12, 2.0),
    Sketcher.Constraint("Radius", 17, 2.0),
    Sketcher.Constraint("Radius", 19, 2.0),
    Sketcher.Constraint("Diameter", 6, 3.2),
    Sketcher.Constraint("Diameter", 13, 3.2),
    Sketcher.Constraint("Diameter", 20, 3.2),
    Sketcher.Constraint("Radius", 5, 3.175),
    Sketcher.Constraint("Radius", 8, 3.175),
    Sketcher.Constraint("Radius", 15, 3.175),
    Sketcher.Constraint("DistanceY", -1, 1, 1, 2, 5.399998),
    Sketcher.Constraint("Distance", 0, 4.264999),
    Sketcher.Constraint("DistanceY", -1, 1, 10, 3, 44.7525),
    Sketcher.Constraint("DistanceY", -1, 1, 2, 2, 15.047301),
    Sketcher.Constraint("DistanceX", 3, 3, 5, 3, 4.983301),
    Sketcher.Constraint("DistanceX", 17, 3, 12, 3, 11.125799),
    Sketcher.Constraint("DistanceY", 19, 3, 17, 3, 4.789398),
    Sketcher.Constraint("DistanceY", 1, 3, 5, 1, 2.223199),
    Sketcher.Constraint("DistanceY", 9, 2, 7, 2, 0.485299),
    Sketcher.Constraint("DistanceX", 9, 2, 10, 2, 2.439399),
    Sketcher.Constraint("DistanceY", 10, 2, 9, 2, 0.698398),
    Sketcher.Constraint("DistanceY", 11, 2, 12, 2, 2.6553),
    Sketcher.Constraint("DistanceX", 7, 2, 12, 2, 2.639101),
    Sketcher.Constraint("DistanceX", 15, 1, 17, 3, 0.150299),
    Sketcher.Constraint("DistanceY", 18, 2, 16, 2, 2.020199),
    Sketcher.Constraint("Distance", 2, 9.689839),
    Sketcher.Constraint("Distance", 11, 9.756631),
    Sketcher.Constraint("Distance", 14, 4.154651),
    Sketcher.Constraint("Distance", 16, 4.263091),
    Sketcher.Constraint("DistanceX", -1, 1, 3, 3, 56.57337),
    Sketcher.Constraint("DistanceY", -1, 1, 3, 3, 15.648729),
    Sketcher.Constraint("DistanceX", -1, 1, 8, 3, 20.458809),
    Sketcher.Constraint("DistanceY", -1, 1, 8, 3, 45.905889),
    Sketcher.Constraint("DistanceY", 15, 3, -1, 1, 7.230788),
    Sketcher.Constraint("DistanceX", -1, 1, 19, 3, 16.890868),
    Sketcher.Constraint("DistanceY", -1, 1, 3, 2, 13.651539),
    Sketcher.Constraint("DistanceY", -1, 1, 4, 2, 13.901432),
    Sketcher.Constraint("DistanceX", -1, 1, 5, 1, 61.72492),
    Sketcher.Constraint("DistanceX", -1, 1, 8, 1, 23.070639),
    Sketcher.Constraint("DistanceX", -1, 1, 9, 2, 25.901618),
    Sketcher.Constraint("DistanceY", -1, 1, 11, 2, 37.62711),
    Sketcher.Constraint("DistanceX", -1, 1, 14, 2, 13.224518),
    Sketcher.Constraint("DistanceY", 14, 2, -1, 1, 8.67035),
    Sketcher.Constraint("DistanceY", -1, 1, 17, 2, 0.497809),
    Sketcher.Constraint("DistanceX", -1, 1, 19, 2, 15.108259),
    Sketcher.Constraint("DistanceY", 5, 3, 2, 2, 4.316408),
])
pad5 = doc.addObject("PartDesign::Pad", "Pad004")
body2.addObject(pad5)
pad5.Profile = sketch5
pad5.Length = 1.5
doc.recompute()

fillet = doc.addObject("PartDesign::Fillet", "Fillet")
body2.addObject(fillet)
fillet.Base = (pad5, edges_at(pad5, [(15.942, 1.675, 7), (43.942, 1.675, 7)]))
fillet.Radius = 1
doc.recompute()

fillet2 = doc.addObject("PartDesign::Fillet", "Fillet001")
body2.addObject(fillet2)
fillet2.Base = (fillet, edges_at(fillet, [
    (19.972, 20.423, 6),
    (15.692, 20.423, 6),
    (15.692, 3.938, 6),
    (40.677, 3.34, 6),
    (39.969, 34.943, 6),
    (21.921, 34.943, 6),
    (21.921, 30.941, 6),
]))
fillet2.Radius = 1
doc.recompute()

fillet3 = doc.addObject("PartDesign::Fillet", "Fillet002")
body2.addObject(fillet3)
fillet3.Base = (fillet2, edges_at(fillet2, [(19.972, 30.941, 6)]))
fillet3.Radius = 1

# Sketch on XZ plane
sketch6 = doc.addObject("Sketcher::SketchObject", "Sketch005")
body2.addObject(sketch6)
sketch6.AttachmentSupport = (doc.getObject("XZ_Plane001"), [""])
sketch6.MapMode = "FlatFace"
sketch6.AttachmentOffset = App.Placement(App.Vector(0, 0, 4.458949), App.Rotation())
sketch6.addGeometry([
    Part.LineSegment(App.Vector(20, 8, 0), App.Vector(20, 3.7, 0)),
    Part.LineSegment(App.Vector(20, 3.7, 0), App.Vector(42.1, 3.7, 0)),
    Part.LineSegment(App.Vector(42.1, 3.7, 0), App.Vector(42.1, 8, 0)),
    Part.LineSegment(App.Vector(42.1, 8, 0), App.Vector(20, 8, 0)),
], False)
sketch6.addConstraint([
    Sketcher.Constraint("Coincident", 0, 2, 1, 1),
    Sketcher.Constraint("Coincident", 1, 2, 2, 1),
    Sketcher.Constraint("Coincident", 2, 2, 3, 1),
    Sketcher.Constraint("Coincident", 3, 2, 0, 1),
    Sketcher.Constraint("Vertical", 0),
    Sketcher.Constraint("Horizontal", 1),
    Sketcher.Constraint("Vertical", 2),
    Sketcher.Constraint("Horizontal", 3),
    Sketcher.Constraint("DistanceY", -1, 1, 2, 2, 8.0),
    Sketcher.Constraint("DistanceX", -1, 1, 1, 2, 42.071499),
    Sketcher.Constraint("DistanceX", 1, 1, 1, 2, 22.082114),
    Sketcher.Constraint("DistanceY", 0, 2, 0, 1, 4.260254),
])
pocket1 = doc.addObject("PartDesign::Pocket", "Pocket")
body2.addObject(pocket1)
pocket1.Profile = sketch6
pocket1.Length = 10
doc.recompute()

fillet4 = doc.addObject("PartDesign::Fillet", "Fillet003")
body2.addObject(fillet4)
fillet4.Base = (pocket1, edges_at(pocket1, [(19.989, 3.835, 6), (40.627, 5.541, 6)]))
fillet4.Radius = 1
doc.recompute()

fillet5 = doc.addObject("PartDesign::Fillet", "Fillet004")
body2.addObject(fillet5)
fillet5.Base = (fillet4, edges_at(fillet4, [(42.071, 5.541, 6)]))
fillet5.Radius = 1
doc.recompute()

boolean = doc.addObject("PartDesign::Boolean", "Boolean")
body.addObject(boolean)
boolean.Type = "Fuse"
boolean.addObjects([body2])

doc.recompute()
